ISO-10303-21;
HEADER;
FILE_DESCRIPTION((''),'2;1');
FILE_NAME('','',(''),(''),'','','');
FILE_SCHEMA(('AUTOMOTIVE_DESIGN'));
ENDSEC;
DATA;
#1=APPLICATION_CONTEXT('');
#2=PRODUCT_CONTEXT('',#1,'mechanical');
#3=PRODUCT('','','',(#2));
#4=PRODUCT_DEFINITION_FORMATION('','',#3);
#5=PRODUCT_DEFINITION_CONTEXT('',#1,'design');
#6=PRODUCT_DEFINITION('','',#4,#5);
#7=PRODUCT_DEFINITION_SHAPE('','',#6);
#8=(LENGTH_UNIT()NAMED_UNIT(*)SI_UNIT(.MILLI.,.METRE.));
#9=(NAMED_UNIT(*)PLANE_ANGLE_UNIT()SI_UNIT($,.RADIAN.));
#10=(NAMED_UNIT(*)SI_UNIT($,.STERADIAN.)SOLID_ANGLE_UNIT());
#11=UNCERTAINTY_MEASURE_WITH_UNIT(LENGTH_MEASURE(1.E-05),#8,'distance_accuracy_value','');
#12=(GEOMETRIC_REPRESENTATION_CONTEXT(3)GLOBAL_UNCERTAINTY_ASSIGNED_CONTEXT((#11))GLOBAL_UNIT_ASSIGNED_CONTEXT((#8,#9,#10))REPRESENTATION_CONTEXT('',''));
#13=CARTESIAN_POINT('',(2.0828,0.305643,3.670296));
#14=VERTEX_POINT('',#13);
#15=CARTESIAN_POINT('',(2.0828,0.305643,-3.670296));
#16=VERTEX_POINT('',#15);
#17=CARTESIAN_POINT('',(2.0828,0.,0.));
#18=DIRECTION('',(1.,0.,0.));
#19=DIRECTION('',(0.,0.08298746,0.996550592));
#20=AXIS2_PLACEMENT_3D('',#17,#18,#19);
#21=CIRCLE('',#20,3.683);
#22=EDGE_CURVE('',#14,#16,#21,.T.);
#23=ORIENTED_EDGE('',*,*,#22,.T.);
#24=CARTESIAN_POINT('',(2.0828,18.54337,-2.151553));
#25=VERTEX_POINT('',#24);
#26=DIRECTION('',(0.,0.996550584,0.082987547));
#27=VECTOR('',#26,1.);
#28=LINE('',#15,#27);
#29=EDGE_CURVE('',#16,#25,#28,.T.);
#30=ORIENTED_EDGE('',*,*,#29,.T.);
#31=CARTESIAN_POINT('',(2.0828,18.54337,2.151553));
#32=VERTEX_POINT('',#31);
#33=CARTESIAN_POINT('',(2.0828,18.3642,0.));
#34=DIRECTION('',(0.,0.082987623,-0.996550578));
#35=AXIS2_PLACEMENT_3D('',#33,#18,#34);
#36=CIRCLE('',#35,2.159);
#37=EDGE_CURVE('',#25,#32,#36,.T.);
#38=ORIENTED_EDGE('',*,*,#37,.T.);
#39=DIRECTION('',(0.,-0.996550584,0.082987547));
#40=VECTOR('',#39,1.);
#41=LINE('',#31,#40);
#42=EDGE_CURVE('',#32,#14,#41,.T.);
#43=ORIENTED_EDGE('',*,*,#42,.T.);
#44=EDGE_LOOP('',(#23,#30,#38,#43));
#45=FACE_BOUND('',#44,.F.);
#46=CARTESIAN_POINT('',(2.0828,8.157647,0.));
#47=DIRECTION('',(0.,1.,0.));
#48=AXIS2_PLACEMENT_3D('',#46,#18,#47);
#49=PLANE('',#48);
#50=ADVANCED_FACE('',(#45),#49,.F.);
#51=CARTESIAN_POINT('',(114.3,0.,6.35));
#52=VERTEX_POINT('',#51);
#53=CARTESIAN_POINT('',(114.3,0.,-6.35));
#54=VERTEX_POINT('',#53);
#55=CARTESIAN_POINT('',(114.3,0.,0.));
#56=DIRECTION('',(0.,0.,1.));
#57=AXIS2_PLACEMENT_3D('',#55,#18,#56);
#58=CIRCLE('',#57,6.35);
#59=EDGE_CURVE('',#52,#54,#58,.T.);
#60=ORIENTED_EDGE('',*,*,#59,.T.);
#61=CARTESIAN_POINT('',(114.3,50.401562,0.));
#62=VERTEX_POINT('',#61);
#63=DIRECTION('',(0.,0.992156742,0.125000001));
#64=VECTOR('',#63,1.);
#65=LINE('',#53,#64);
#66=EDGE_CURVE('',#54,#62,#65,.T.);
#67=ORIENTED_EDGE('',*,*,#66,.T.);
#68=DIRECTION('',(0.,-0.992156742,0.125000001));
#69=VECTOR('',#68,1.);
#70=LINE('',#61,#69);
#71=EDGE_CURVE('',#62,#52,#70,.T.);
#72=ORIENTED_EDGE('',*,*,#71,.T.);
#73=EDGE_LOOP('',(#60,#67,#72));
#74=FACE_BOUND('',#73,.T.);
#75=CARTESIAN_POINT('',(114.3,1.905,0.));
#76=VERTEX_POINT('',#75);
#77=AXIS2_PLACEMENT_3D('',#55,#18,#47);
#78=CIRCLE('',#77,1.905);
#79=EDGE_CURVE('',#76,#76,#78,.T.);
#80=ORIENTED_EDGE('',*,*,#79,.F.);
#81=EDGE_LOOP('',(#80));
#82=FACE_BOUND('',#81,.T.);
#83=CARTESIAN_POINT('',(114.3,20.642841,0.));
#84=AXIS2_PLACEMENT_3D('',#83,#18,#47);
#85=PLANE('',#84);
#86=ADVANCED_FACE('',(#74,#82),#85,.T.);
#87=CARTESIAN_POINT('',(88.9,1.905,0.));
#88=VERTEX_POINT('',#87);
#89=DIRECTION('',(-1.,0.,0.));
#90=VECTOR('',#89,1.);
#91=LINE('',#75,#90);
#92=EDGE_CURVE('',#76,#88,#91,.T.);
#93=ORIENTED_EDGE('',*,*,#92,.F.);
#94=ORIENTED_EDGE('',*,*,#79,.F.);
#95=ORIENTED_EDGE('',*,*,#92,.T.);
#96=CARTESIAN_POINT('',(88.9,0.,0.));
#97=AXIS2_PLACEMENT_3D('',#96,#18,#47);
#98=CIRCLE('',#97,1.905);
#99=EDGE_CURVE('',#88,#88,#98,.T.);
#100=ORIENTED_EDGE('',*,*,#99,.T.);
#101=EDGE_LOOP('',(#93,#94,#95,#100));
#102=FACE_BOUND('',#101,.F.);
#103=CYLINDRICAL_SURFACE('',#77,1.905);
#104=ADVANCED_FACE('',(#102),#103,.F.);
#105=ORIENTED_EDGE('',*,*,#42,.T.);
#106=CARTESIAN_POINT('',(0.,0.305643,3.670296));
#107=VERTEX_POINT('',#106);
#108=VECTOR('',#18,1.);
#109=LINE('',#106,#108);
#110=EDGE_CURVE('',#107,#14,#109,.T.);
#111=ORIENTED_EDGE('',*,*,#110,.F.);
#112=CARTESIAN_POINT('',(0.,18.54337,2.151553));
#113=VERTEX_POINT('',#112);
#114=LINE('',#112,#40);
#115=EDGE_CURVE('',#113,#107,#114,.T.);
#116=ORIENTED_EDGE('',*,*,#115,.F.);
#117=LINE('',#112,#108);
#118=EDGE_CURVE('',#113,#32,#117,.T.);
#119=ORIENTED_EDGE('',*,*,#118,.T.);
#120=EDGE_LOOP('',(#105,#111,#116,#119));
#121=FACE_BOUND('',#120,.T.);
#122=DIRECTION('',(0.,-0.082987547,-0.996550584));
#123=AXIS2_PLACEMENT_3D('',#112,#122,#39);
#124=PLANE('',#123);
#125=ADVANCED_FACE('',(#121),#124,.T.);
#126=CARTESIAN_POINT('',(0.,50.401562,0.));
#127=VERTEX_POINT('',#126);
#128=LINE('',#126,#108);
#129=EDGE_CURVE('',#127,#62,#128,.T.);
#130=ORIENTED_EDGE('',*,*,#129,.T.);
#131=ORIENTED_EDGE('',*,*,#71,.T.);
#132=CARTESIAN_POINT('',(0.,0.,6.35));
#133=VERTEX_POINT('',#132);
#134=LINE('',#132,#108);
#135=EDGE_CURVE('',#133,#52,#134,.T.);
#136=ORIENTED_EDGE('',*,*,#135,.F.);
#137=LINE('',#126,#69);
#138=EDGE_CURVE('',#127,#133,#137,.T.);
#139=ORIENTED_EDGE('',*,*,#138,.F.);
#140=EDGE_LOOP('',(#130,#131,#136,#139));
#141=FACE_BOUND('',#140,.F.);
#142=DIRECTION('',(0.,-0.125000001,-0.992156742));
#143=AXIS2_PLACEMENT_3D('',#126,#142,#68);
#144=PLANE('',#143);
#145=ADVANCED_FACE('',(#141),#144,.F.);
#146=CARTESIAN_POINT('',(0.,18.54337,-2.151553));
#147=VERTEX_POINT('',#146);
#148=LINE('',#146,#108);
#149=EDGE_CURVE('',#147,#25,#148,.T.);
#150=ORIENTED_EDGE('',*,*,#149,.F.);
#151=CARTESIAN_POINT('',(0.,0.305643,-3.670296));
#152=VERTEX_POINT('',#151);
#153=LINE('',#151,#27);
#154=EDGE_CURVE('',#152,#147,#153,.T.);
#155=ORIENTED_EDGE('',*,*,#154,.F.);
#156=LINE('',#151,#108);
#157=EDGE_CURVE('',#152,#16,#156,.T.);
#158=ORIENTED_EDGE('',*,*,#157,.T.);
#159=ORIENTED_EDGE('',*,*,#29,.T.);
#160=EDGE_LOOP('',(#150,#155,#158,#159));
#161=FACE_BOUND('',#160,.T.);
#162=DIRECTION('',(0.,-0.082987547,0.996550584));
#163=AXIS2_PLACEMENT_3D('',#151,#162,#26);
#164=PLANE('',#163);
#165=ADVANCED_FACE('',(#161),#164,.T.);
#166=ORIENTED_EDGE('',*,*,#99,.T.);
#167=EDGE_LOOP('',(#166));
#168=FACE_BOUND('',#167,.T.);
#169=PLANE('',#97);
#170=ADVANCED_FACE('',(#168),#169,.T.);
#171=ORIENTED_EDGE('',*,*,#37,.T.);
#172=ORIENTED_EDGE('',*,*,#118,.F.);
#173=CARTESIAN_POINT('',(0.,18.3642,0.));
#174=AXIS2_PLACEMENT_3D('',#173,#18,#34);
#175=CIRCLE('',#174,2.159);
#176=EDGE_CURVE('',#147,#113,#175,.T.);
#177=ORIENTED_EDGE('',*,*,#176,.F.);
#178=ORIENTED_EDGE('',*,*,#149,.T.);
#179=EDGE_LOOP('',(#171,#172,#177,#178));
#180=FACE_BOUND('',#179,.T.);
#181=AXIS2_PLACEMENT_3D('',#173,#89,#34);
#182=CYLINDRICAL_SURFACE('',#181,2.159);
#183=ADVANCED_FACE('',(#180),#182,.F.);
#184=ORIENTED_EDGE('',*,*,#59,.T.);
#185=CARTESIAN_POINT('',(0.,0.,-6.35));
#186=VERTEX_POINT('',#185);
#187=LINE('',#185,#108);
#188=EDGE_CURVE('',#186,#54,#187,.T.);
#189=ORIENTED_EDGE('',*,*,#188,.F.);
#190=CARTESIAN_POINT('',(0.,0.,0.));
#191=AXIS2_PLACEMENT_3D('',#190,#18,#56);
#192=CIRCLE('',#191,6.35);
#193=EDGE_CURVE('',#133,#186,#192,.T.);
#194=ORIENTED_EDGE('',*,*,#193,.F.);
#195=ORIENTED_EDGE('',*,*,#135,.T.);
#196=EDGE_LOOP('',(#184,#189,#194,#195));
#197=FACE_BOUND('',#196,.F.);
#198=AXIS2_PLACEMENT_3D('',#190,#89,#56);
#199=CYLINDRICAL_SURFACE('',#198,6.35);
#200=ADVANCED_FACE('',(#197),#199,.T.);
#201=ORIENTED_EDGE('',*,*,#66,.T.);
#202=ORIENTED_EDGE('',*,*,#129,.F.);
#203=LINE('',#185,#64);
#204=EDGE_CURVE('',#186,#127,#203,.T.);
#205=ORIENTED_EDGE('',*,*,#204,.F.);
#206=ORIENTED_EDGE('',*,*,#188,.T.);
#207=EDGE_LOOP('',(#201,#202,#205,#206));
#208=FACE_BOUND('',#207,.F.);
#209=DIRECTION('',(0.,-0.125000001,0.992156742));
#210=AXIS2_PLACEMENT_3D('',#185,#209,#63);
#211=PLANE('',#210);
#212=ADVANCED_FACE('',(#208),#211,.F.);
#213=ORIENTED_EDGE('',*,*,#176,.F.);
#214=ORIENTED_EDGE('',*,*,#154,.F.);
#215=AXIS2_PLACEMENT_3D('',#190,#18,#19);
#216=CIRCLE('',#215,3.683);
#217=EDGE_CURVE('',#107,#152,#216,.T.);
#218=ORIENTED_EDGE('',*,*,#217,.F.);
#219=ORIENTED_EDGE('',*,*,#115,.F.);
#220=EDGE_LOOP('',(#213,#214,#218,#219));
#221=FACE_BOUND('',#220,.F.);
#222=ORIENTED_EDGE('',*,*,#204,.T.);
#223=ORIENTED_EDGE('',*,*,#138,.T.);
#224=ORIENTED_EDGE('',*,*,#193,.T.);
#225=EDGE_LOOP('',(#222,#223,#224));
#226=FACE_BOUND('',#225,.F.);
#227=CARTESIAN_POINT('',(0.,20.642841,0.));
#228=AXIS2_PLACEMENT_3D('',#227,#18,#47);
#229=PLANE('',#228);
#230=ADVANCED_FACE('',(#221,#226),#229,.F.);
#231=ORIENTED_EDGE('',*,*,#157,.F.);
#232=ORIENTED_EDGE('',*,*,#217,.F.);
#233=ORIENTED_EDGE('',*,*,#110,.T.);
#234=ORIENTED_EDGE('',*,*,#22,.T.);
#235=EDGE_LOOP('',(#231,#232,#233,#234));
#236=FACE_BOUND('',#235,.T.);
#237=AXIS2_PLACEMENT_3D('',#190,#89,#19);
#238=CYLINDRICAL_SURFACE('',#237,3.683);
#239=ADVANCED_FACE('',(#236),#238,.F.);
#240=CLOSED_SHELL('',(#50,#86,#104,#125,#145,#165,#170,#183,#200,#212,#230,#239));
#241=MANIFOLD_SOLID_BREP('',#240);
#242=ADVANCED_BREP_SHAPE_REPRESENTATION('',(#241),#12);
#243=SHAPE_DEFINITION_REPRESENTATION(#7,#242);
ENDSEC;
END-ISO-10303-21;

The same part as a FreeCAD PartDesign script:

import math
import FreeCAD as App
import Part
import Sketcher
Q = App.Units.Quantity

doc = App.newDocument("Part")
body = doc.addObject("PartDesign::Body", "Body")

sketch1 = body.newObject("Sketcher::SketchObject", "Sketch")
sketch1.AttachmentSupport = (doc.getObject("YZ_Plane"), [""])
sketch1.MapMode = "FlatFace"
sketch1.addGeometry([
    Part.LineSegment(App.Vector(50.401562, 0, 0), App.Vector(0, 6.35, 0)),
    Part.ArcOfCircle(Part.Circle(App.Vector(0, 0, 0), App.Vector(0, 0, 1), 6.35), math.radians(90), math.radians(270)),
    Part.LineSegment(App.Vector(0, -6.35, 0), App.Vector(50.401562, 0, 0)),
], False)
sketch1.addConstraint([
    Sketcher.Constraint("Coincident", 0, 2, 1, 1),
    Sketcher.Constraint("Coincident", 1, 2, 2, 1),
    Sketcher.Constraint("Coincident", 2, 2, 0, 1),
    Sketcher.Constraint("Coincident", 1, 3, -1, 1),
    Sketcher.Constraint("PointOnObject", 0, 2, -2),
    Sketcher.Constraint("PointOnObject", 1, 2, -2),
    Sketcher.Constraint("PointOnObject", 2, 2, -1),
    Sketcher.Constraint("Radius", 1, Q("0.25 in")),
    Sketcher.Constraint("Distance", 0, Q("2 in")),
])
pad1 = body.newObject("PartDesign::Pad", "Pad")
pad1.Profile = sketch1
pad1.Length = Q("4.5 in")

sketch2 = body.newObject("Sketcher::SketchObject", "Sketch001")
sketch2.AttachmentSupport = (doc.getObject("YZ_Plane"), [""])
sketch2.MapMode = "FlatFace"
sketch2.addGeometry([
    Part.LineSegment(App.Vector(18.54337, 2.151553, 0), App.Vector(0.305643, 3.670296, 0)),
    Part.ArcOfCircle(Part.Circle(App.Vector(0, 0, 0), App.Vector(0, 0, 1), 3.683), math.radians(85.239694), math.radians(274.760306)),
    Part.LineSegment(App.Vector(0.305643, -3.670296, 0), App.Vector(18.54337, -2.151553, 0)),
    Part.ArcOfCircle(Part.Circle(App.Vector(18.3642, 0, 0), App.Vector(0, 0, 1), 2.159), math.radians(-85.239685), math.radians(85.239685)),
], False)
sketch2.addConstraint([
    Sketcher.Constraint("Tangent", 0, 2, 1, 1),
    Sketcher.Constraint("Tangent", 1, 2, 2, 1),
    Sketcher.Constraint("Tangent", 2, 2, 3, 1),
    Sketcher.Constraint("Tangent", 3, 2, 0, 1),
    Sketcher.Constraint("Coincident", 1, 3, -1, 1),
    Sketcher.Constraint("PointOnObject", 3, 3, -1),
    Sketcher.Constraint("Radius", 1, Q("0.145 in")),
    Sketcher.Constraint("Radius", 3, Q("0.085 in")),
    Sketcher.Constraint("DistanceX", -1, 1, 3, 3, Q("0.723 in")),
])
pocket1 = body.newObject("PartDesign::Pocket", "Pocket")
pocket1.Profile = sketch2
pocket1.Length = Q("0.082 in")
pocket1.Reversed = True

sketch3 = body.newObject("Sketcher::SketchObject", "Sketch002")
sketch3.AttachmentSupport = (doc.getObject("YZ_Plane"), [""])
sketch3.MapMode = "FlatFace"
sketch3.AttachmentOffset = App.Placement(App.Vector(0, 0, 4.5 * 25.4), App.Rotation())
sketch3.addGeometry(Part.Circle(App.Vector(0, 0, 0), App.Vector(0, 0, 1), 1.905), False)
sketch3.addConstraint([
    Sketcher.Constraint("Coincident", 0, 3, -1, 1),
    Sketcher.Constraint("Diameter", 0, Q("0.15 in")),
])
pocket2 = body.newObject("PartDesign::Pocket", "Pocket001")
pocket2.Profile = sketch3
pocket2.Length = Q("1 in")

doc.recompute()
